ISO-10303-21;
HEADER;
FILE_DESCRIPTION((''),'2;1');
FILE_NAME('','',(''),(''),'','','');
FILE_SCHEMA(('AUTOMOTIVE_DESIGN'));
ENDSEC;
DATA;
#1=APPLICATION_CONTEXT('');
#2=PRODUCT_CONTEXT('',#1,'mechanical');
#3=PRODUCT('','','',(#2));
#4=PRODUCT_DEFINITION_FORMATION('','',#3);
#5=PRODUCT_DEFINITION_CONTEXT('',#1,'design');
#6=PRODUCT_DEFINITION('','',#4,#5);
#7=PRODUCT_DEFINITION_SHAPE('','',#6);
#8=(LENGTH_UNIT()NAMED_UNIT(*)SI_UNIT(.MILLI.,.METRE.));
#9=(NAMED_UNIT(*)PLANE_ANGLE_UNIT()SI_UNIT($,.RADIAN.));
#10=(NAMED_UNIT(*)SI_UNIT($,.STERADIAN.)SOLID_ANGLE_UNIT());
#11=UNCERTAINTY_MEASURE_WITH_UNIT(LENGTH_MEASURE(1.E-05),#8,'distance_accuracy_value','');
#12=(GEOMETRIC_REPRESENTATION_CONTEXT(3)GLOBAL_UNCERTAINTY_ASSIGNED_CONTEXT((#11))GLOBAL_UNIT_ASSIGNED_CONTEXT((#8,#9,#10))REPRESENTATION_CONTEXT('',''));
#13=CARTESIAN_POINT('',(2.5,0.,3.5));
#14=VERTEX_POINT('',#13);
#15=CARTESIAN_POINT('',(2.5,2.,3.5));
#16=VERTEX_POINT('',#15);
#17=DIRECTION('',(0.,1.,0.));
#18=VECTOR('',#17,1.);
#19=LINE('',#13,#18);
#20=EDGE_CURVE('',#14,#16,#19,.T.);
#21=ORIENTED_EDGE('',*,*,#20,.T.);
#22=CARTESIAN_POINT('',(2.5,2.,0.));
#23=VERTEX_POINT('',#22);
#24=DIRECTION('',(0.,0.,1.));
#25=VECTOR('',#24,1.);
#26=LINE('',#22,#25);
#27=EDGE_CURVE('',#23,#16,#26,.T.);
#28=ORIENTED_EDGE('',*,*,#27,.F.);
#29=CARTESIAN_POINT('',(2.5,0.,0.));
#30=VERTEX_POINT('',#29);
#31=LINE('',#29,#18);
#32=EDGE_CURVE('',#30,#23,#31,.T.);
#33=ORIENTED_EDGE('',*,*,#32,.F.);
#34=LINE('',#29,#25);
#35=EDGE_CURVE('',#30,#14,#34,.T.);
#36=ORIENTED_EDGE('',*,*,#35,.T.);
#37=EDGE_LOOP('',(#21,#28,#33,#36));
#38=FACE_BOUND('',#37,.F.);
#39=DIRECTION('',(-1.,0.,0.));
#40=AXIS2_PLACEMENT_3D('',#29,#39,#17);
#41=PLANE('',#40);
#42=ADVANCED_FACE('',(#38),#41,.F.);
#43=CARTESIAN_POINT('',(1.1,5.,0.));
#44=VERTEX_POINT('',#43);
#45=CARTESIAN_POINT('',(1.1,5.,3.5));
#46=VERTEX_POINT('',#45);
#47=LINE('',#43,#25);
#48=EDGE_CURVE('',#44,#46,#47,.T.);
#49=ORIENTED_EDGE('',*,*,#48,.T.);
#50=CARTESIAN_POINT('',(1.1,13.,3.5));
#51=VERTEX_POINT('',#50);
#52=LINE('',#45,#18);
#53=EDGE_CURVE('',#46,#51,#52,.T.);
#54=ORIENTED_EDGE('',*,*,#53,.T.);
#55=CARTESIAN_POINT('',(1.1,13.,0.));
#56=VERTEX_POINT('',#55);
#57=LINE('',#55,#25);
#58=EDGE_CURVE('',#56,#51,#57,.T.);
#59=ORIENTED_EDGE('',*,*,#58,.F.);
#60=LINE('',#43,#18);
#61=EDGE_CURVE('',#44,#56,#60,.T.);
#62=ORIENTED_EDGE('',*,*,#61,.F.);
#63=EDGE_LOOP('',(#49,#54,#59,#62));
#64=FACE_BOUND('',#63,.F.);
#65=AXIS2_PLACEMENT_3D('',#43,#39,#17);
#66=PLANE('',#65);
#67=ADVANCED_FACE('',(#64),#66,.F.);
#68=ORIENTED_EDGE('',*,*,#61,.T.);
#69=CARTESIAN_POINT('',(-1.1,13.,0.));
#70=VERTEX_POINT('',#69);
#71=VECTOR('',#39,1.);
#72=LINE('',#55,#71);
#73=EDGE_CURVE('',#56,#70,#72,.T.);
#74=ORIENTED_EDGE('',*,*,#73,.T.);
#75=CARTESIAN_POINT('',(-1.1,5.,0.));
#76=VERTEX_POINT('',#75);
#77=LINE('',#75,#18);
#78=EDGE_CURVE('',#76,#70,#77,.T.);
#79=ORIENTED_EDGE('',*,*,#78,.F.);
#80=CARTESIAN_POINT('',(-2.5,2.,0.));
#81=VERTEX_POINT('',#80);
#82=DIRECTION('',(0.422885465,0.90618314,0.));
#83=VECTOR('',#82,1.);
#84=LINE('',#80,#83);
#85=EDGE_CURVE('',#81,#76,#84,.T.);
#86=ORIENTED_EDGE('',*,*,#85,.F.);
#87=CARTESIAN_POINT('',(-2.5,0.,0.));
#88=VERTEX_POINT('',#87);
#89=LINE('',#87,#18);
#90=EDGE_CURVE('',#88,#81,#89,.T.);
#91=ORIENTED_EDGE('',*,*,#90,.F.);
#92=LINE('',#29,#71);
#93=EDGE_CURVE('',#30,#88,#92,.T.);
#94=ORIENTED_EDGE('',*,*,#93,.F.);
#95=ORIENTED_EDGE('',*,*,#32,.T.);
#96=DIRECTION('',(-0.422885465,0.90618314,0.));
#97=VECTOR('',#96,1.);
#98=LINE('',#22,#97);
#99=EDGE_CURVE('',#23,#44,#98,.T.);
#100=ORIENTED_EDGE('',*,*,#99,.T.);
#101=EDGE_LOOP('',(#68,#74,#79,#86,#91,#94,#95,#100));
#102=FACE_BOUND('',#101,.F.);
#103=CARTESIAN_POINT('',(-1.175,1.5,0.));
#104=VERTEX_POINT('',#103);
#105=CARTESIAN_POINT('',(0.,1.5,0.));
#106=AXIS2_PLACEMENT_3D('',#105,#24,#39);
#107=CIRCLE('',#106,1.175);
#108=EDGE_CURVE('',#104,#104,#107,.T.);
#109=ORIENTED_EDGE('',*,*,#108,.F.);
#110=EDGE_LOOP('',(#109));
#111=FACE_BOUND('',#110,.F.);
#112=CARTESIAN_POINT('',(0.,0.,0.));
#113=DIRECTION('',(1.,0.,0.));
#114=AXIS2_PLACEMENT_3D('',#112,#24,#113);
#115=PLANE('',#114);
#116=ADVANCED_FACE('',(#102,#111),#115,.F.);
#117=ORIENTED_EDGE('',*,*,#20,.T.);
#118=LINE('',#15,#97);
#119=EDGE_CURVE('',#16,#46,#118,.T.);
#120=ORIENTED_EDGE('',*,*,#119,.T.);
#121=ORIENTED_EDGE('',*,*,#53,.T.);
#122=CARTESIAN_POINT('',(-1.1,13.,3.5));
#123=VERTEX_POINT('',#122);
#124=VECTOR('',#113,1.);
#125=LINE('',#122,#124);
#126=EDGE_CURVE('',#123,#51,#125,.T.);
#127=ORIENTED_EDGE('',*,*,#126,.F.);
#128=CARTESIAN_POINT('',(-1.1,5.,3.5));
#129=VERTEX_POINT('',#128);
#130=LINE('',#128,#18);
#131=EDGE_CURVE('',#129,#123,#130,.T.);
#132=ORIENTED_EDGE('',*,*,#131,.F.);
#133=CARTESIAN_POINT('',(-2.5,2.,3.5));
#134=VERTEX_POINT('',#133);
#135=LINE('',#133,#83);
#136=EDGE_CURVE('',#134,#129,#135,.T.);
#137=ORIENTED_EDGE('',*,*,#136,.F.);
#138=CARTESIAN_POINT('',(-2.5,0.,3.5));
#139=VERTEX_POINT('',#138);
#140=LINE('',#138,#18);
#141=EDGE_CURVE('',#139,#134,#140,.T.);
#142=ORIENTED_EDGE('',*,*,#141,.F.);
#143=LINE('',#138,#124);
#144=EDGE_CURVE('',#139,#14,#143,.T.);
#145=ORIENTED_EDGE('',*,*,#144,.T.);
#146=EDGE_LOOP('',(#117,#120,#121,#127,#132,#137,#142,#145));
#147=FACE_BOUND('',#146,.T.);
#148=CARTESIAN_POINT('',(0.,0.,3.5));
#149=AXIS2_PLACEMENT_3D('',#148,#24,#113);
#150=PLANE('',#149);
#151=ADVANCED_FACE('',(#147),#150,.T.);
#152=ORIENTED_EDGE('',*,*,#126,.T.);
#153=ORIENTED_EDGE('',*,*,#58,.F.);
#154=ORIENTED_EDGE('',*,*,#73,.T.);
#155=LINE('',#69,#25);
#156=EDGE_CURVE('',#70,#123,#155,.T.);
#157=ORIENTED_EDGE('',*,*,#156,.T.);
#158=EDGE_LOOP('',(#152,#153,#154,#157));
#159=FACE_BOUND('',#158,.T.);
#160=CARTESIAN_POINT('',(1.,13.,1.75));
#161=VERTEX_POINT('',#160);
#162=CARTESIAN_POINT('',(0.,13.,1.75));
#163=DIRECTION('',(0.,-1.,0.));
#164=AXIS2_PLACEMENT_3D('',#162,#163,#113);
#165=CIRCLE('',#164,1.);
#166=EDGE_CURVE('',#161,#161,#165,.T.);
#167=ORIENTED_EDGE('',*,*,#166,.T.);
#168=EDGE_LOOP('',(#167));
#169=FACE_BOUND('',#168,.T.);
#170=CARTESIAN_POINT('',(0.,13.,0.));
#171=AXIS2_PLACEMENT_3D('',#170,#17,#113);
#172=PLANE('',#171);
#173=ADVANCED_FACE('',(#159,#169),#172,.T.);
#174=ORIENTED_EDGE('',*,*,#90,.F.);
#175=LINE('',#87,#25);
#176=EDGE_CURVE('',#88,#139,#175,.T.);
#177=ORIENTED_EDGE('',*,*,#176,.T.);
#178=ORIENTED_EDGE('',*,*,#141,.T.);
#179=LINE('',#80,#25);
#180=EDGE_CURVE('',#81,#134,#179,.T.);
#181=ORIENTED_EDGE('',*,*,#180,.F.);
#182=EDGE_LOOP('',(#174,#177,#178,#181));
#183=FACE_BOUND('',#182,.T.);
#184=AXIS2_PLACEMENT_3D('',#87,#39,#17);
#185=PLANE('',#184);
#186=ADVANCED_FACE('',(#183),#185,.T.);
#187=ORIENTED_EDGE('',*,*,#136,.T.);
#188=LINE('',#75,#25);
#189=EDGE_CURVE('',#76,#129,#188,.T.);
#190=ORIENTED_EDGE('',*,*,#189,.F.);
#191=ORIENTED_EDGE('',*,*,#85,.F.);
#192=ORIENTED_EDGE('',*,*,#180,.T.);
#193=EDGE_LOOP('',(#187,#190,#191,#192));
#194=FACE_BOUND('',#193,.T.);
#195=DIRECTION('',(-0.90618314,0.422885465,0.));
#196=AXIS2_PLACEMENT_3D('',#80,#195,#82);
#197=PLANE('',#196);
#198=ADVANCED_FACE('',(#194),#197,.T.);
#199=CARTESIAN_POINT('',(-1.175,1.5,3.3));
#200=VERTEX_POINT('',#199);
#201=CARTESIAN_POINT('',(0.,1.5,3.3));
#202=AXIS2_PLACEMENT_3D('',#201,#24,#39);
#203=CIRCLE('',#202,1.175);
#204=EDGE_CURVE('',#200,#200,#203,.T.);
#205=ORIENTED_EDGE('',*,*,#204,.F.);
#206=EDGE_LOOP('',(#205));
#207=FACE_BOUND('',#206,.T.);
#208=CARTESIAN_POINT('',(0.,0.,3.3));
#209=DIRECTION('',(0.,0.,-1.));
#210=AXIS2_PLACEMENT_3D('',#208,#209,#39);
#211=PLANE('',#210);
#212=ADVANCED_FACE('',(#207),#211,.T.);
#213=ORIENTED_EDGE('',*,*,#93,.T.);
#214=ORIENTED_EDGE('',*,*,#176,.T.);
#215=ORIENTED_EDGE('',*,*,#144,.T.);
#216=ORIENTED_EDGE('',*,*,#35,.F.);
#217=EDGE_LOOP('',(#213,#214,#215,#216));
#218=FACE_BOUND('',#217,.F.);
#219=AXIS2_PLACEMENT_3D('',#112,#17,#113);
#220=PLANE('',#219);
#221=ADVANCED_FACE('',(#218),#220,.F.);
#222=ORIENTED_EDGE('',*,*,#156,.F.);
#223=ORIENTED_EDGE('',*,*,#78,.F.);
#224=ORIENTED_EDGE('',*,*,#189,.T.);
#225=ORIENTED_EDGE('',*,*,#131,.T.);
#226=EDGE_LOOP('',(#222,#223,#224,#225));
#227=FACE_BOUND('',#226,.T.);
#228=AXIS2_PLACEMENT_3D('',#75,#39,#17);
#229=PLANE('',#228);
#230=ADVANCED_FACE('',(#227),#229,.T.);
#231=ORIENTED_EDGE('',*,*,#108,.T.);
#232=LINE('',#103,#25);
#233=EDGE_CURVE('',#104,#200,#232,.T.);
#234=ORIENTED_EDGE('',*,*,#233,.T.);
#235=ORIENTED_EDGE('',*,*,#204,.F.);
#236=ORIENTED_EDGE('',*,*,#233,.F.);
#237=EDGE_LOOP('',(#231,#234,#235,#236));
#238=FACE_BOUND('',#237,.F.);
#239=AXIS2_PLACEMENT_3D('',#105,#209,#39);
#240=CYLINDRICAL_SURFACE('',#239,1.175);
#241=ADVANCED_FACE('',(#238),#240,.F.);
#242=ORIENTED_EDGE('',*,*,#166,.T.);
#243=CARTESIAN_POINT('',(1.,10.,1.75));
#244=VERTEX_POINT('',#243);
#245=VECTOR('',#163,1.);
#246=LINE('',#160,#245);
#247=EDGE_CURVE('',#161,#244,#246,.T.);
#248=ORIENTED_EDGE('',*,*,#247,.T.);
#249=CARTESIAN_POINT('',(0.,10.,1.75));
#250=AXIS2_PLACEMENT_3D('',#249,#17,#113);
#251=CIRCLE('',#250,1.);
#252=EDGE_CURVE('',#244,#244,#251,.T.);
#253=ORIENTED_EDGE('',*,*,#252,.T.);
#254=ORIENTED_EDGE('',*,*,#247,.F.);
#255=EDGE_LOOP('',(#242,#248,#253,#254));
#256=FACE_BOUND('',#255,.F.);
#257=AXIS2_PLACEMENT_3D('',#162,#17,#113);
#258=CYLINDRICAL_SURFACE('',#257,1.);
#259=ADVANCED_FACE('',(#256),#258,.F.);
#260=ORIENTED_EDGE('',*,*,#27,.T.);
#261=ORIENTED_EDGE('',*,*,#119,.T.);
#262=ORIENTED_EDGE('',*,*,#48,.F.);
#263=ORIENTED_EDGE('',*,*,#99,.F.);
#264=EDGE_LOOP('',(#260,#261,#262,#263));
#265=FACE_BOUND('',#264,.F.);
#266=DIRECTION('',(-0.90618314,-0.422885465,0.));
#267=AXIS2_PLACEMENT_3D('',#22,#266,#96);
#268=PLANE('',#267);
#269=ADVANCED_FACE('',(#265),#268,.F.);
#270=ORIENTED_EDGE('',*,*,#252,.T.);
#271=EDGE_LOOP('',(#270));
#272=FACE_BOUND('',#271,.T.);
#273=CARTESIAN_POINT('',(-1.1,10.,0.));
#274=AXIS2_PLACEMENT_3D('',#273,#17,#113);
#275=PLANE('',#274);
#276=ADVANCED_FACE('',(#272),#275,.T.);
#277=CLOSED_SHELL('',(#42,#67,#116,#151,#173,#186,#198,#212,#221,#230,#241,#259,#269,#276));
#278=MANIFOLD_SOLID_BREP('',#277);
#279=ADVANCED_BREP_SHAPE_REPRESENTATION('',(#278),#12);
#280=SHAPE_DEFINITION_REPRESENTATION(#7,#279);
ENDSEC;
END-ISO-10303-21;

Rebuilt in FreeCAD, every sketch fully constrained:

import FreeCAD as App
import Part
import Sketcher
Q = App.Units.Quantity


def add_polygon(sketch, points):
    """Adds a closed chain of lines whose ends are joined by coincident constraints."""
    first, n = sketch.GeometryCount, len(points)
    for a, b in zip(points, points[1:] + points[:1]):
        sketch.addGeometry(Part.LineSegment(App.Vector(*a, 0), App.Vector(*b, 0)), False)
    for i in range(n):
        sketch.addConstraint(Sketcher.Constraint("Coincident", first + i, 2, first + (i + 1) % n, 1))

doc = App.newDocument("Part")
body = doc.addObject("PartDesign::Body", "Body")

sketch1 = body.newObject("Sketcher::SketchObject", "Sketch")
sketch1.AttachmentSupport = (doc.getObject("XY_Plane"), [""])
sketch1.MapMode = "FlatFace"
add_polygon(sketch1, [(1.1, 13), (-1.1, 13), (-1.1, 5), (-2.5, 2), (-2.5, 0), (2.5, 0), (2.5, 2), (1.1, 5)])
sketch1.addConstraint([
    Sketcher.Constraint("Horizontal", 0),
    Sketcher.Constraint("Vertical", 1),
    Sketcher.Constraint("Vertical", 3),
    Sketcher.Constraint("Horizontal", 4),
    Sketcher.Constraint("Vertical", 5),
    Sketcher.Constraint("Vertical", 7),
    Sketcher.Constraint("Symmetric", 3, 2, 4, 2, -1, 1),
    Sketcher.Constraint("Symmetric", 1, 2, 6, 2, -2),
    Sketcher.Constraint("Horizontal", 2, 2, 5, 2),
    Sketcher.Constraint("DistanceY", 1, 2, 1, 1, Q("8 mm")),
    Sketcher.Constraint("DistanceY", 3, 2, 3, 1, Q("2 mm")),
    Sketcher.Constraint("DistanceY", -1, 1, 0, 2, Q("13 mm")),
    Sketcher.Constraint("DistanceX", 0, 2, -1, 1, Q("1.1 mm")),
    Sketcher.Constraint("DistanceX", 2, 2, -1, 1, Q("2.5 mm")),
])
pad1 = body.newObject("PartDesign::Pad", "Pad")
pad1.Profile = sketch1
pad1.Length = 3.5

sketch2 = body.newObject("Sketcher::SketchObject", "Sketch001")
sketch2.AttachmentSupport = (doc.getObject("XY_Plane"), [""])
sketch2.MapMode = "FlatFace"
sketch2.addGeometry(Part.Circle(App.Vector(0, 1.5, 0), App.Vector(0, 0, 1), 1.2), False)
sketch2.addConstraint([
    Sketcher.Constraint("PointOnObject", 0, 3, -2),
    Sketcher.Constraint("Diameter", 0, Q("2.35 mm")),
    Sketcher.Constraint("DistanceY", -1, 1, 0, 3, Q("1.5 mm")),
])
pocket1 = body.newObject("PartDesign::Pocket", "Pocket")
pocket1.Profile = sketch2
pocket1.Length = 3.3
pocket1.Reversed = True

sketch3 = body.newObject("Sketcher::SketchObject", "Sketch002")
sketch3.AttachmentSupport = (doc.getObject("XZ_Plane"), [""])
sketch3.MapMode = "FlatFace"
sketch3.AttachmentOffset = App.Placement(App.Vector(0, 0, -13), App.Rotation())
sketch3.addGeometry(Part.Circle(App.Vector(0, 1.8, 0), App.Vector(0, 0, 1), 1), False)
sketch3.addConstraint([
    Sketcher.Constraint("PointOnObject", 0, 3, -2),
    Sketcher.Constraint("Diameter", 0, Q("2 mm")),
    Sketcher.Constraint("DistanceY", -1, 1, 0, 3, Q("1.75 mm")),
])
pocket2 = body.newObject("PartDesign::Pocket", "Pocket001")
pocket2.Profile = sketch3
pocket2.Length = 3
pocket2.Reversed = True

doc.recompute()
